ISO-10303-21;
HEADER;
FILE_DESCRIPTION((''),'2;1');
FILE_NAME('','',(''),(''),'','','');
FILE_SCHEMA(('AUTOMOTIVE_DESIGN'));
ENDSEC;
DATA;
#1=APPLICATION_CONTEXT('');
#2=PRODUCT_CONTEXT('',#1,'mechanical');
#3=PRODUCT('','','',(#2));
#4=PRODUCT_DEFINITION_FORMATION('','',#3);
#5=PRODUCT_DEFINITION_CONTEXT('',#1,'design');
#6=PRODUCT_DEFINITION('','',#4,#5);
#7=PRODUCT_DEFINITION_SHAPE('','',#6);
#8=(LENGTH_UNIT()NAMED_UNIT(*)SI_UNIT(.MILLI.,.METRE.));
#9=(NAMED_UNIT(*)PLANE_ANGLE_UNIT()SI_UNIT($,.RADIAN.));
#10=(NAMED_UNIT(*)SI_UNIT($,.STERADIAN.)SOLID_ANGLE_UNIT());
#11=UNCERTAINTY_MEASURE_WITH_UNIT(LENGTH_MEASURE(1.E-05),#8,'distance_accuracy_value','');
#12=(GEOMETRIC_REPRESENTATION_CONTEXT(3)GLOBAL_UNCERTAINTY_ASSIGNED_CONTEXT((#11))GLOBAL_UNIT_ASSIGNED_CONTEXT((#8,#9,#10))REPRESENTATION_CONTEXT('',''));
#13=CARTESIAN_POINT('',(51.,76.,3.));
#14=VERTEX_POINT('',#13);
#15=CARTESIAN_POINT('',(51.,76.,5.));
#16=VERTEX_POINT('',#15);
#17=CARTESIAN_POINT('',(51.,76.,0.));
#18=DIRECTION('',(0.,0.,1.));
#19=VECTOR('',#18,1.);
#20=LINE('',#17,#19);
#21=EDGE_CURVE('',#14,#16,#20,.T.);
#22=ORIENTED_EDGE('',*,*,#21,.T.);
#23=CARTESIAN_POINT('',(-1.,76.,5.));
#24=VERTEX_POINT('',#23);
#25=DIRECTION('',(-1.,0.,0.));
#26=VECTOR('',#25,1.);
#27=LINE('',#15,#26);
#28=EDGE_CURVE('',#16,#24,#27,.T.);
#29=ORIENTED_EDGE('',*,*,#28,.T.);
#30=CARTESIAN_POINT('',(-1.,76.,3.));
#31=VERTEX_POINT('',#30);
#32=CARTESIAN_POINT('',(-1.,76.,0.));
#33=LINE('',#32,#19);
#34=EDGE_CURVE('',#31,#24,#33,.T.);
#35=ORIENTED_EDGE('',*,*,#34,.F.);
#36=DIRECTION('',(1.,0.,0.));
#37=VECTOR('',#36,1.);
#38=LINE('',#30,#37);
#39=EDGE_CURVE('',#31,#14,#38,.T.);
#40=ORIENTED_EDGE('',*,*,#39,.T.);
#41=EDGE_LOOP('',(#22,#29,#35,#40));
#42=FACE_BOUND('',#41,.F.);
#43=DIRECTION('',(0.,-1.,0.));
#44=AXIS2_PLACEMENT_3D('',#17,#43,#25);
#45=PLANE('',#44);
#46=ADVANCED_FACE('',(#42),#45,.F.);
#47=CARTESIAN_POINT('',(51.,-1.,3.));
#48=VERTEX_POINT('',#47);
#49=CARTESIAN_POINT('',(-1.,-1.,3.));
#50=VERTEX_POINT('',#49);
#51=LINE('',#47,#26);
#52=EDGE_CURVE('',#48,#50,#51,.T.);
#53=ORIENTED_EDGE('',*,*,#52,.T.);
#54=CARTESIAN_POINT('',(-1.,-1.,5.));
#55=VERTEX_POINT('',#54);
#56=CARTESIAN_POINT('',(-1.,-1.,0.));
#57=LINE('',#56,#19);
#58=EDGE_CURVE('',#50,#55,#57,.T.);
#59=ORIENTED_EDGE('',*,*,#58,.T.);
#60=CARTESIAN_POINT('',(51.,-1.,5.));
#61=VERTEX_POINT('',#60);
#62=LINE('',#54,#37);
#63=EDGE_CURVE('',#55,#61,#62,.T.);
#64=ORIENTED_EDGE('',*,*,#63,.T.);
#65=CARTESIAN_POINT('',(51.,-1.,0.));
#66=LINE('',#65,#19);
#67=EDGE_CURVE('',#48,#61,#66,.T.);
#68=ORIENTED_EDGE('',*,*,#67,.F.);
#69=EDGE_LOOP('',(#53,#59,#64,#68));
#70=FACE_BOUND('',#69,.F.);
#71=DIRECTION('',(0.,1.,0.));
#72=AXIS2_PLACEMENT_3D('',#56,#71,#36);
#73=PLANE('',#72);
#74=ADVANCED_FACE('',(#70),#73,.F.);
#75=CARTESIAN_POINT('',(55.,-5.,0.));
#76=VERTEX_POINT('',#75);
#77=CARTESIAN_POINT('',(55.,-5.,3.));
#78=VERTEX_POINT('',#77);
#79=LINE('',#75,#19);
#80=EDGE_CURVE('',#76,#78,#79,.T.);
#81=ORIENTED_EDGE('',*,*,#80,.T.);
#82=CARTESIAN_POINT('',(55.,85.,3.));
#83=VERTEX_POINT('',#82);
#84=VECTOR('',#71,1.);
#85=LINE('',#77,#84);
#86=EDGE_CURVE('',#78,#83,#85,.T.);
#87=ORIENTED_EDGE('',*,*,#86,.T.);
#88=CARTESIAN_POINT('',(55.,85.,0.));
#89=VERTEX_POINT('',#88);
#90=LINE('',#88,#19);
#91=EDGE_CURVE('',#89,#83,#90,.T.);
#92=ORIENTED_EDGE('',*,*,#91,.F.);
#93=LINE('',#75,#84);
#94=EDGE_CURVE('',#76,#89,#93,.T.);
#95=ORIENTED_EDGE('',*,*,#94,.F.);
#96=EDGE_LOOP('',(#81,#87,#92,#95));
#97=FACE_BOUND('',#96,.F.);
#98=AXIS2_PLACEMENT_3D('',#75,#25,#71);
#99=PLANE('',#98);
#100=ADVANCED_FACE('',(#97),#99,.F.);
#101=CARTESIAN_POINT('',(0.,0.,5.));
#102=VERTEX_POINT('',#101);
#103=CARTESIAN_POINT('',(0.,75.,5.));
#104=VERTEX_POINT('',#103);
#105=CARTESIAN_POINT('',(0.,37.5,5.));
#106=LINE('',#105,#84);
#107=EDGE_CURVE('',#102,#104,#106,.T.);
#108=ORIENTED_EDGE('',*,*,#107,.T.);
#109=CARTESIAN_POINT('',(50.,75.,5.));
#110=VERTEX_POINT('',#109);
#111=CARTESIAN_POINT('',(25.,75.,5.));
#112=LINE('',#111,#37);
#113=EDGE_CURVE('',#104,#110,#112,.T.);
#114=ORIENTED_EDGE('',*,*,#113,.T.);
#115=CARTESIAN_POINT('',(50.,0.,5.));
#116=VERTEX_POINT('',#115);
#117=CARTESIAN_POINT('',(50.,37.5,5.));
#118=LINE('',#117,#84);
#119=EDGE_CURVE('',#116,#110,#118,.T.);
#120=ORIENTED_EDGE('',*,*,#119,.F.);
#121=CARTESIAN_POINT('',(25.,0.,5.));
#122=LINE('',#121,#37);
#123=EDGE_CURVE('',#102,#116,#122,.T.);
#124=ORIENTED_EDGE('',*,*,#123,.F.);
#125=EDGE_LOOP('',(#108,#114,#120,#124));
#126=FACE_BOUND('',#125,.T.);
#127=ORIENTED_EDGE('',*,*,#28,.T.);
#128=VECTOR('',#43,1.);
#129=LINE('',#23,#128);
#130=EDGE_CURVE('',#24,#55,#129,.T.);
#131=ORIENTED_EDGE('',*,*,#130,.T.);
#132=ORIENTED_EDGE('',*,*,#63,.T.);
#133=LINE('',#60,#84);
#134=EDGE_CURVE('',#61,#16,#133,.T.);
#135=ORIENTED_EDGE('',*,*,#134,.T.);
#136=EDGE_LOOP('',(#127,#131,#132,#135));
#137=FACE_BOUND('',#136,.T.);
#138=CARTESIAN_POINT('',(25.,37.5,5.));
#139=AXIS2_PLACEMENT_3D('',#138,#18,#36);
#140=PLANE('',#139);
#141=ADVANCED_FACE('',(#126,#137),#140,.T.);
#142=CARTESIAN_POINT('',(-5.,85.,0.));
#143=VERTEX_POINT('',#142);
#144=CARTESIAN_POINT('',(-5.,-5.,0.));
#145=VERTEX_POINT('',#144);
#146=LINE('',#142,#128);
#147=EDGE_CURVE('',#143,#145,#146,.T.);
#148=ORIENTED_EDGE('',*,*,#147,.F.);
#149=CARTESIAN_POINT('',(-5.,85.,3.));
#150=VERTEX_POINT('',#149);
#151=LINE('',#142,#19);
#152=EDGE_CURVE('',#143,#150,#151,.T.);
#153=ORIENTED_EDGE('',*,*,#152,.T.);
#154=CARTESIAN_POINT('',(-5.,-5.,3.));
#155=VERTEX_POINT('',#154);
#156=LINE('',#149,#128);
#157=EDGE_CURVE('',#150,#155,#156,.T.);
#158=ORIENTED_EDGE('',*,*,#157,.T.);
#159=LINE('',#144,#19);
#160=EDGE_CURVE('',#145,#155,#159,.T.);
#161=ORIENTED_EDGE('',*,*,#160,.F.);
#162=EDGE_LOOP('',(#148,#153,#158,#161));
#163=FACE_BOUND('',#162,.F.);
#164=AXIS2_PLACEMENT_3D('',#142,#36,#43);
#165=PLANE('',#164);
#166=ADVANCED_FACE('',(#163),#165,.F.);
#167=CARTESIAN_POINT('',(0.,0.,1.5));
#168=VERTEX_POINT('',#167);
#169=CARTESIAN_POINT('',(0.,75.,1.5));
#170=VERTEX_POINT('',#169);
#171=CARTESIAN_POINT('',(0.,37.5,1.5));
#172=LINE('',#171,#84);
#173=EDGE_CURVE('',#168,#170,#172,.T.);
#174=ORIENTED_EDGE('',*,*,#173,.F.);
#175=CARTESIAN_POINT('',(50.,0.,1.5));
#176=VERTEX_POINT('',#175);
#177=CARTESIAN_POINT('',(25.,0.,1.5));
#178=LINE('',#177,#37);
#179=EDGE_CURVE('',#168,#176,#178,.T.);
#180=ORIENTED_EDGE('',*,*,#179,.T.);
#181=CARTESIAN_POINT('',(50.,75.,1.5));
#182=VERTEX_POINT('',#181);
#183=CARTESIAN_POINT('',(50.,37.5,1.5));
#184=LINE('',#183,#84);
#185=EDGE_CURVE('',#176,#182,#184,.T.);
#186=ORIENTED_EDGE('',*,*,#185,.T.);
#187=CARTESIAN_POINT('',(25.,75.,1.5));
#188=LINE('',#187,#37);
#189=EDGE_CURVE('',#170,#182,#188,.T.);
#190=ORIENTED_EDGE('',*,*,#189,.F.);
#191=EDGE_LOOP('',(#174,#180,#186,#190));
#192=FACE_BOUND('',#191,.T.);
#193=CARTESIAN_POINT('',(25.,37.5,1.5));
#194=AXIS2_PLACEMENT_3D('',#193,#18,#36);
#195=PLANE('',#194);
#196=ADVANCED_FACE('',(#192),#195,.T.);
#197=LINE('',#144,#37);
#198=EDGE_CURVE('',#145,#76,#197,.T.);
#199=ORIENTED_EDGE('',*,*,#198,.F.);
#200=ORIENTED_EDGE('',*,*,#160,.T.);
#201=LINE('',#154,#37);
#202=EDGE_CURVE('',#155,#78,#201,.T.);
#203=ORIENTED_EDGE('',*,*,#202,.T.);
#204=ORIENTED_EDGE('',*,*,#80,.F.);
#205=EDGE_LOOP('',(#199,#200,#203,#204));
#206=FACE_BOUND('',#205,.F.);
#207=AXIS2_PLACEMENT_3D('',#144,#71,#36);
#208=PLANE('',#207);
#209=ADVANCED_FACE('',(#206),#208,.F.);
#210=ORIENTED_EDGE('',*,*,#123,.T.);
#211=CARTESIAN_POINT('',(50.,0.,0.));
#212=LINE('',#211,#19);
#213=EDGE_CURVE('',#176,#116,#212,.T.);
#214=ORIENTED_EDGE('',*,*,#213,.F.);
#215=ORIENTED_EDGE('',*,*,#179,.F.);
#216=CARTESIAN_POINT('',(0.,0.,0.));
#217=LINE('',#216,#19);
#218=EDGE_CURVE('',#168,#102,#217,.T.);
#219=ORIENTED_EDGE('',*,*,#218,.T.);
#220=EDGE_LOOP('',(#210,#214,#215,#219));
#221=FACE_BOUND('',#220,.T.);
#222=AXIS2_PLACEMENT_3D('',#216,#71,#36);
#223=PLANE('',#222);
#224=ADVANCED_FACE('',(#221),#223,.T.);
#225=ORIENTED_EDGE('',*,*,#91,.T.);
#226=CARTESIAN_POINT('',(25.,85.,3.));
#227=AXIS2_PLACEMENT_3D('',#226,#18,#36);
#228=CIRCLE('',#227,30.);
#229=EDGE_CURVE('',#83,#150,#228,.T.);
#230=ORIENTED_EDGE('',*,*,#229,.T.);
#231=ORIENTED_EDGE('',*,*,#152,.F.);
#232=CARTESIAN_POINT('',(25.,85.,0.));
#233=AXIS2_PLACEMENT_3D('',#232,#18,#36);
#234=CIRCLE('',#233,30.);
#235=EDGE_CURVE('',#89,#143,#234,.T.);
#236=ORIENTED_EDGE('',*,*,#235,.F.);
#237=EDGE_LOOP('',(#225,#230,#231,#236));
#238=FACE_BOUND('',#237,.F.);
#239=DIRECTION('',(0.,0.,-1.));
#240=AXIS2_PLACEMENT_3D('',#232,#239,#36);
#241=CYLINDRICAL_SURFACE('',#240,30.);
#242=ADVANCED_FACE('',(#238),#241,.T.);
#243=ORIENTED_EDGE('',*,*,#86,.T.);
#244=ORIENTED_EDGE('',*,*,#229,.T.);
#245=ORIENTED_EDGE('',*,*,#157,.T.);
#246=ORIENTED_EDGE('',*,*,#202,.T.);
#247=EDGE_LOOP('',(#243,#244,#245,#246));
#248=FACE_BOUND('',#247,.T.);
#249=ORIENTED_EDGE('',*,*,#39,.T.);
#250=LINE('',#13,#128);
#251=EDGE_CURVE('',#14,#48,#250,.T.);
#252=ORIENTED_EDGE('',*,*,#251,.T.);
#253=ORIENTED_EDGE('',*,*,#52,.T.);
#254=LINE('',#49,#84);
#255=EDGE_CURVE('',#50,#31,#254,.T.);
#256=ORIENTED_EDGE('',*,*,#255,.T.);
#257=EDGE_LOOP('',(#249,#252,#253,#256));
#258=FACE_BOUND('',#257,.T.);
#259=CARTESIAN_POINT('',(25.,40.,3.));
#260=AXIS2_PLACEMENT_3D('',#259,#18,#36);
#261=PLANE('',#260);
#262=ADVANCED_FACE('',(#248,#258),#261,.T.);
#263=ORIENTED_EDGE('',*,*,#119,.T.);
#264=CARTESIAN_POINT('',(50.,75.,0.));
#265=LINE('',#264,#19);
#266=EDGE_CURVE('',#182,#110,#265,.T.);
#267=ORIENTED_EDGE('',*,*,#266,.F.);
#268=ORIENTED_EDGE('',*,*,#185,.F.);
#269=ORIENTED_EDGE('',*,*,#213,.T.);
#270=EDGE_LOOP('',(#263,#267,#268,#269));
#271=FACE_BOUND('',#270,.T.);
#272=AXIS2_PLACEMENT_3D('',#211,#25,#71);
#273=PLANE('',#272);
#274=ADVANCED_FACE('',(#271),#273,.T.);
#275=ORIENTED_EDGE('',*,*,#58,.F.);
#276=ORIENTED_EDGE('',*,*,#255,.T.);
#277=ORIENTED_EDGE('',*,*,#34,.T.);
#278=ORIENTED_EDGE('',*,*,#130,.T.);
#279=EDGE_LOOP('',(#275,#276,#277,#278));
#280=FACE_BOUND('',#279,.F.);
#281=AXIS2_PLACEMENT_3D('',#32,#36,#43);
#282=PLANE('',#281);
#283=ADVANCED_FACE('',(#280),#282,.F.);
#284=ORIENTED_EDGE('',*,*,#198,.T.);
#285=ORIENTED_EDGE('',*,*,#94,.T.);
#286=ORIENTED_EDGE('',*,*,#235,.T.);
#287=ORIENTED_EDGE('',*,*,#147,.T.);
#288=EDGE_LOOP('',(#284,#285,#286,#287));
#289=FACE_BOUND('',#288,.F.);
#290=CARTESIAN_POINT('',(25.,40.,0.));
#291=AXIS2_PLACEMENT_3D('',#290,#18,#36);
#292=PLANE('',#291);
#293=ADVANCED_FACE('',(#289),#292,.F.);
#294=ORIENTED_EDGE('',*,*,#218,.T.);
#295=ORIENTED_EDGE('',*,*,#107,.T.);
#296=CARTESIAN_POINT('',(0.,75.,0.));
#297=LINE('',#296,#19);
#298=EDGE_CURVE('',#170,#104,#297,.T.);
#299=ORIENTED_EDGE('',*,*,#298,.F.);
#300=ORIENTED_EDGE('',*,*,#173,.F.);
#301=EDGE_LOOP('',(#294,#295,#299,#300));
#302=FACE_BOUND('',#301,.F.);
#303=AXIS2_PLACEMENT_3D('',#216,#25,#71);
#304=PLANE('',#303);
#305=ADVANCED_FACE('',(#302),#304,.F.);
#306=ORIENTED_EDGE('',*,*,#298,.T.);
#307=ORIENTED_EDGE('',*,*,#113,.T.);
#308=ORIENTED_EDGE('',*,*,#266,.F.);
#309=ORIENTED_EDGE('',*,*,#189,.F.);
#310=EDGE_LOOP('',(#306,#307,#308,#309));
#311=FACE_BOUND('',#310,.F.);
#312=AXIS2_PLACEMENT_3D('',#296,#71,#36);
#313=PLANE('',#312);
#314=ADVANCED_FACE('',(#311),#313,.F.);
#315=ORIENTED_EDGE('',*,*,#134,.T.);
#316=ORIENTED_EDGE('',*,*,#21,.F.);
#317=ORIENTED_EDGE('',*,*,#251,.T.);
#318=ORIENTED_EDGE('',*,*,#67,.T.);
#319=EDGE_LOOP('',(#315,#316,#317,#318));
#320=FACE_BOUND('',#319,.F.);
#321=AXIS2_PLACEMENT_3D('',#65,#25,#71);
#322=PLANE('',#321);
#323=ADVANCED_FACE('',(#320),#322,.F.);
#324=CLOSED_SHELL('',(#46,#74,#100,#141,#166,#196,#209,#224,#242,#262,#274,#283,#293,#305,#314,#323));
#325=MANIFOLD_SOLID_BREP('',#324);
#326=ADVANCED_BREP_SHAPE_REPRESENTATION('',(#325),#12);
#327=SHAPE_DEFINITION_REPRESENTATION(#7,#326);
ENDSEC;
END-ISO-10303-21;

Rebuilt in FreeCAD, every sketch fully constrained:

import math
import FreeCAD as App
import Part
import Sketcher


def add_polygon(sketch, points):
    """Adds a closed chain of lines whose ends are joined by coincident constraints."""
    first, n = sketch.GeometryCount, len(points)
    for a, b in zip(points, points[1:] + points[:1]):
        sketch.addGeometry(Part.LineSegment(App.Vector(*a, 0), App.Vector(*b, 0)), False)
    for i in range(n):
        sketch.addConstraint(Sketcher.Constraint("Coincident", first + i, 2, first + (i + 1) % n, 1))

doc = App.newDocument("Part")
body = doc.addObject("PartDesign::Body", "Body")

# Sketch on XY plane
sketch1 = doc.addObject("Sketcher::SketchObject", "Sketch")
body.addObject(sketch1)
sketch1.AttachmentSupport = (doc.XY_Plane, [""])
sketch1.MapMode = "FlatFace"
sketch1.addGeometry(Part.LineSegment(App.Vector(55, -5, 0), App.Vector(55, 85, 0)), False)  # 0
sketch1.addGeometry(Part.ArcOfCircle(Part.Circle(App.Vector(25, 85, 0), App.Vector(0, 0, 1), 30), math.radians(0), math.radians(180)), False)  # 1
sketch1.addGeometry(Part.LineSegment(App.Vector(-5, 85, 0), App.Vector(-5, -5, 0)), False)  # 2
sketch1.addGeometry(Part.LineSegment(App.Vector(-5, -5, 0), App.Vector(55, -5, 0)), False)  # 3
add_polygon(sketch1, [(-1, 76), (51, 76), (51, -1), (-1, -1)])  # lines 4-7
sketch1.addConstraint([
    Sketcher.Constraint("Tangent", 0, 2, 1, 1),
    Sketcher.Constraint("Tangent", 1, 2, 2, 1),
    Sketcher.Constraint("Coincident", 2, 2, 3, 1),
    Sketcher.Constraint("Coincident", 3, 2, 0, 1),
    Sketcher.Constraint("Vertical", 0),
    Sketcher.Constraint("Vertical", 2),
    Sketcher.Constraint("Horizontal", 3),
    Sketcher.Constraint("Horizontal", 4),
    Sketcher.Constraint("Vertical", 5),
    Sketcher.Constraint("Horizontal", 6),
    Sketcher.Constraint("Vertical", 7),
    Sketcher.Constraint("Radius", 1, 30.0),
    Sketcher.Constraint("DistanceX", 4, 1, 4, 2, 52.0),
    Sketcher.Constraint("DistanceY", 0, 1, 0, 2, 90.0),
    Sketcher.Constraint("DistanceY", 5, 2, 5, 1, 77.0),
    Sketcher.Constraint("DistanceX", -1, 1, 1, 3, 25.0),
    Sketcher.Constraint("DistanceY", -1, 1, 1, 3, 85.0),
    Sketcher.Constraint("DistanceX", -1, 1, 4, 2, 51.0),
    Sketcher.Constraint("DistanceY", -1, 1, 4, 2, 76.0),
])
pad1 = doc.addObject("PartDesign::Pad", "Pad")
body.addObject(pad1)
pad1.Profile = sketch1
pad1.Length = 3
body2 = doc.addObject("PartDesign::Body", "Body001")

# Sketch on XY plane
sketch2 = doc.addObject("Sketcher::SketchObject", "Sketch001")
body2.addObject(sketch2)
sketch2.AttachmentSupport = (doc.getObject("XY_Plane001"), [""])
sketch2.MapMode = "FlatFace"
add_polygon(sketch2, [(0, 75), (0, 0), (50, 0), (50, 75)])  # lines 0-3
sketch2.addConstraint([
    Sketcher.Constraint("Vertical", 0),
    Sketcher.Constraint("Horizontal", 1),
    Sketcher.Constraint("Vertical", 2),
    Sketcher.Constraint("Horizontal", 3),
    Sketcher.Constraint("Coincident", 0, 2, -1, 1),
    Sketcher.Constraint("DistanceX", 1, 1, 1, 2, 50.0),
    Sketcher.Constraint("DistanceY", 0, 2, 0, 1, 75.0),
])
pad2 = doc.addObject("PartDesign::Pad", "Pad001")
body2.addObject(pad2)
pad2.Profile = sketch2
pad2.Length = 1.5
body.AllowCompound = True
doc.recompute()

boolean = doc.addObject("PartDesign::Boolean", "Boolean")
body.addObject(boolean)
boolean.Type = "Fuse"
boolean.addObjects([body2])

# Sketch on XY plane
sketch3 = doc.addObject("Sketcher::SketchObject", "Sketch002")
body.addObject(sketch3)
sketch3.AttachmentSupport = (doc.XY_Plane, [""])
sketch3.MapMode = "FlatFace"
add_polygon(sketch3, [(51, -1), (51, 76), (-1, 76), (-1, -1)])  # lines 0-3
add_polygon(sketch3, [(50, 0), (0, 0), (0, 75), (50, 75)])  # lines 4-7
sketch3.addConstraint([
    Sketcher.Constraint("Vertical", 0),
    Sketcher.Constraint("Horizontal", 1),
    Sketcher.Constraint("Vertical", 2),
    Sketcher.Constraint("Horizontal", 3),
    Sketcher.Constraint("Horizontal", 4),
    Sketcher.Constraint("Vertical", 5),
    Sketcher.Constraint("Horizontal", 6),
    Sketcher.Constraint("Vertical", 7),
    Sketcher.Constraint("Coincident", 4, 2, -1, 1),
    Sketcher.Constraint("DistanceX", 1, 2, 1, 1, 52.0),
    Sketcher.Constraint("DistanceX", 4, 2, 4, 1, 50.0),
    Sketcher.Constraint("DistanceY", 0, 1, 0, 2, 77.0),
    Sketcher.Constraint("DistanceY", 5, 1, 5, 2, 75.0),
    Sketcher.Constraint("DistanceX", -1, 1, 0, 2, 51.0),
    Sketcher.Constraint("DistanceY", -1, 1, 0, 2, 76.0),
])
pad3 = doc.addObject("PartDesign::Pad", "Pad002")
body.addObject(pad3)
pad3.Profile = sketch3
pad3.Length = 5

doc.recompute()
